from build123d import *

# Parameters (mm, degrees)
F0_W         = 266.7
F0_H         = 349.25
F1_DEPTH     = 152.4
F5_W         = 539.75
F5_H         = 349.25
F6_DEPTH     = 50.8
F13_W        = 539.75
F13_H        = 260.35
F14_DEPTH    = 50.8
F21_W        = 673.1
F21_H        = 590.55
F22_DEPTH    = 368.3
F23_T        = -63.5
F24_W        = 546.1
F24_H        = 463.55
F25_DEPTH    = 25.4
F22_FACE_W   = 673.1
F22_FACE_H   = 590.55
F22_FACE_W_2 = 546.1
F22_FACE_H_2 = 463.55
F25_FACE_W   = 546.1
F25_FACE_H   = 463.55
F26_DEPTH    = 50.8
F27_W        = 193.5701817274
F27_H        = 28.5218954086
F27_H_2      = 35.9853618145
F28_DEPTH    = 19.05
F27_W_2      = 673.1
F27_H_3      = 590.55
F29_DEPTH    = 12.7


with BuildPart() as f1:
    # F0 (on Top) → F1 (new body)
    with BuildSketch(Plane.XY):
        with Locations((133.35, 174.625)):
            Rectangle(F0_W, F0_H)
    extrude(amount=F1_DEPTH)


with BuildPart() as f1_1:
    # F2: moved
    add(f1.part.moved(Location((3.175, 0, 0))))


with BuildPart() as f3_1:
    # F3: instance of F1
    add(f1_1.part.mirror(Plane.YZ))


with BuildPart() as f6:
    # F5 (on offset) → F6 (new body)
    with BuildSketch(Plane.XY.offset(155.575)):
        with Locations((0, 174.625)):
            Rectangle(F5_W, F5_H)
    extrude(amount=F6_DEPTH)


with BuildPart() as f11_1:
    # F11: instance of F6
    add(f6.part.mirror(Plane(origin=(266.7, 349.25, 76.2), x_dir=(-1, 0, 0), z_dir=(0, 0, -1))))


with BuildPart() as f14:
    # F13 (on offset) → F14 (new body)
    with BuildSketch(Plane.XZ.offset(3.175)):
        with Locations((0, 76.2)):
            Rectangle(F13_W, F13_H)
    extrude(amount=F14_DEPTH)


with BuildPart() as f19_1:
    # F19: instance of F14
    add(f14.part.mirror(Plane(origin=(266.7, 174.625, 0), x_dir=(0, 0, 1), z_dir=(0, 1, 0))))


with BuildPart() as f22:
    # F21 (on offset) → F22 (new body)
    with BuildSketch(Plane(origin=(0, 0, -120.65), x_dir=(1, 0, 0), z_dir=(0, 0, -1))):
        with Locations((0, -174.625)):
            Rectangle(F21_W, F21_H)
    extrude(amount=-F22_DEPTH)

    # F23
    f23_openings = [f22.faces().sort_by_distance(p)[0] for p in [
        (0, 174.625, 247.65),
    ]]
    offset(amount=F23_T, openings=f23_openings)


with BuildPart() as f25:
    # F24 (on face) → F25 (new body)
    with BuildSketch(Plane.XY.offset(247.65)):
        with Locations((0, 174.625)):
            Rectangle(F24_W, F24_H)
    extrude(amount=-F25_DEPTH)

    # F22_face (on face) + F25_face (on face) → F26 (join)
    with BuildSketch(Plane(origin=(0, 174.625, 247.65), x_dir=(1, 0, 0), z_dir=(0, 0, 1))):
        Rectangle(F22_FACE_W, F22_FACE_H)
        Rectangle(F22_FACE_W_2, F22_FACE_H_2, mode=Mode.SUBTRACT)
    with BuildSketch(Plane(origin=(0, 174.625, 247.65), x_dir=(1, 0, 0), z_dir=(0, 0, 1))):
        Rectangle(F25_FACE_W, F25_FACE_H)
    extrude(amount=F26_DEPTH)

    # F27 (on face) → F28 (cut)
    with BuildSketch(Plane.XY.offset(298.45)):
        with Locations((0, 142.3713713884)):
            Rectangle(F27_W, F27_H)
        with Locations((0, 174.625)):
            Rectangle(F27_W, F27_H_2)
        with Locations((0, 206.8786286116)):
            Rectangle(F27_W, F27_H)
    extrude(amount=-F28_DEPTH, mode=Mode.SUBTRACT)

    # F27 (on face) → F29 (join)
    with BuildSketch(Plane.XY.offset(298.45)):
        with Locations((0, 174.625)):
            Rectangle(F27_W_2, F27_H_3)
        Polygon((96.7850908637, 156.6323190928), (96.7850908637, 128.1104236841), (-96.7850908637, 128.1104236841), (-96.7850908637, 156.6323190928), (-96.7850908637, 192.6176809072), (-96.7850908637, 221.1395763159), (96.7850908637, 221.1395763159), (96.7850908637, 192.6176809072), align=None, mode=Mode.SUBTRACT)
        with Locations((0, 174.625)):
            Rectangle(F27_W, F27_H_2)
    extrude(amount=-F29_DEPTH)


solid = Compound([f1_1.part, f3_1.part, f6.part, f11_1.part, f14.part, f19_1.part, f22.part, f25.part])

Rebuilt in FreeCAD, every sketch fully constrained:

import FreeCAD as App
import Part
import Sketcher

V = App.Vector
Q = App.Units.Quantity


def faces_at(feature, points):
    """Names of the faces that lie closest to the given points."""
    faces = feature.Shape.Faces
    near = lambda p: min(range(len(faces)), key=lambda i: faces[i].distToShape(Part.Vertex(*p))[0])
    return sorted({f"Face{near(p) + 1}" for p in points})


def add_polygon(sketch, points):
    """Adds a closed chain of lines whose ends are joined by coincident constraints."""
    first, n = sketch.GeometryCount, len(points)
    for a, b in zip(points, points[1:] + points[:1]):
        sketch.addGeometry(Part.LineSegment(App.Vector(*a, 0), App.Vector(*b, 0)), False)
    for i in range(n):
        sketch.addConstraint(Sketcher.Constraint("Coincident", first + i, 2, first + (i + 1) % n, 1))

doc = App.newDocument("Part")
body = doc.addObject("PartDesign::Body", "Body")

sketch1 = body.newObject("Sketcher::SketchObject", "Sketch")
sketch1.AttachmentSupport = (doc.getObject("XY_Plane"), [""])
sketch1.MapMode = "FlatFace"
add_polygon(sketch1, [(0, 349), (0, 0), (267, 0), (267, 349)])
sketch1.addConstraint(Sketcher.Constraint("Vertical", 0))
sketch1.addConstraint(Sketcher.Constraint("Horizontal", 1))
sketch1.addConstraint(Sketcher.Constraint("Vertical", 2))
sketch1.addConstraint(Sketcher.Constraint("Horizontal", 3))
sketch1.addConstraint(Sketcher.Constraint("Coincident", 0, 2, -1, 1))
sketch1.addConstraint(Sketcher.Constraint("DistanceX", 1, 1, 1, 2, Q("10.5 in")))
sketch1.addConstraint(Sketcher.Constraint("DistanceY", 0, 2, 0, 1, Q("13.75 in")))
pad1 = body.newObject("PartDesign::Pad", "Pad")
pad1.Profile = sketch1
pad1.Length = Q("6 in")
body2 = doc.addObject("PartDesign::Body", "Body001")
doc.recompute()

body.Placement = App.Placement(V(3.175, 0, 0), App.Rotation(V(0, 0, 1), 0))
boolean = body2.newObject("PartDesign::Boolean", "Boolean")
boolean.Type = "Fuse"
boolean.addObjects([body])
body3 = doc.addObject("PartDesign::Body", "Body002")
doc.recompute()

mirroring = doc.addObject("Part::Mirroring", "Mirroring")
mirroring.Source = body2
mirroring.Base = V(0, 0, 0)
mirroring.Normal = V(1, 0, 0)
body3.BaseFeature = mirroring
doc.recompute()
body4 = doc.addObject("PartDesign::Body", "Body003")

sketch2 = body4.newObject("Sketcher::SketchObject", "Sketch001")
sketch2.AttachmentSupport = (doc.getObject("XY_Plane003"), [""])
sketch2.MapMode = "FlatFace"
sketch2.AttachmentOffset = App.Placement(V(0, 0, 6.125 * 25.4), App.Rotation())
add_polygon(sketch2, [(-270, 349), (-270, 0), (270, 0), (270, 349)])
sketch2.addConstraint(Sketcher.Constraint("Vertical", 0))
sketch2.addConstraint(Sketcher.Constraint("Horizontal", 1))
sketch2.addConstraint(Sketcher.Constraint("Vertical", 2))
sketch2.addConstraint(Sketcher.Constraint("Horizontal", 3))
sketch2.addConstraint(Sketcher.Constraint("Symmetric", 0, 2, 1, 2, -1, 1))
sketch2.addConstraint(Sketcher.Constraint("DistanceX", 1, 1, 1, 2, Q("21.25 in")))
sketch2.addConstraint(Sketcher.Constraint("DistanceY", 0, 2, 0, 1, Q("13.75 in")))
pad2 = body4.newObject("PartDesign::Pad", "Pad001")
pad2.Profile = sketch2
pad2.Length = Q("2 in")
body5 = doc.addObject("PartDesign::Body", "Body004")
doc.recompute()

mirroring2 = doc.addObject("Part::Mirroring", "Mirroring001")
mirroring2.Source = body4
mirroring2.Base = V(266.7, 349.25, 76.2)
mirroring2.Normal = V(0, 0, -1)
body5.BaseFeature = mirroring2
doc.recompute()
body6 = doc.addObject("PartDesign::Body", "Body005")

sketch3 = body6.newObject("Sketcher::SketchObject", "Sketch002")
sketch3.AttachmentSupport = (doc.getObject("XZ_Plane005"), [""])
sketch3.MapMode = "FlatFace"
sketch3.AttachmentOffset = App.Placement(V(0, 0, 0.125 * 25.4), App.Rotation())
add_polygon(sketch3, [(-270, 206), (-270, -54), (270, -54), (270, 206)])
sketch3.addConstraint(Sketcher.Constraint("Vertical", 0))
sketch3.addConstraint(Sketcher.Constraint("Horizontal", 1))
sketch3.addConstraint(Sketcher.Constraint("Vertical", 2))
sketch3.addConstraint(Sketcher.Constraint("Horizontal", 3))
sketch3.addConstraint(Sketcher.Constraint("DistanceX", 1, 1, 1, 2, Q("21.25 in")))
sketch3.addConstraint(Sketcher.Constraint("DistanceY", 0, 2, 0, 1, Q("10.25 in")))
sketch3.addConstraint(Sketcher.Constraint("DistanceX", 0, 2, -1, 1, Q("10.625 in")))
sketch3.addConstraint(Sketcher.Constraint("DistanceY", 0, 2, -1, 1, Q("2.125 in")))
pad3 = body6.newObject("PartDesign::Pad", "Pad002")
pad3.Profile = sketch3
pad3.Length = Q("2 in")
body7 = doc.addObject("PartDesign::Body", "Body006")
doc.recompute()

mirroring3 = doc.addObject("Part::Mirroring", "Mirroring002")
mirroring3.Source = body6
mirroring3.Base = V(266.7, 174.625, 0)
mirroring3.Normal = V(0, 1, 0)
body7.BaseFeature = mirroring3
doc.recompute()
body8 = doc.addObject("PartDesign::Body", "Body007")

sketch4 = body8.newObject("Sketcher::SketchObject", "Sketch003")
sketch4.AttachmentSupport = (doc.getObject("XY_Plane007"), [""])
sketch4.MapMode = "FlatFace"
sketch4.AttachmentOffset = App.Placement(V(0, 0, -4.75 * 25.4), App.Rotation())
add_polygon(sketch4, [(-337, -121), (-337, 470), (337, 470), (337, -121)])
sketch4.addConstraint(Sketcher.Constraint("Vertical", 0))
sketch4.addConstraint(Sketcher.Constraint("Horizontal", 1))
sketch4.addConstraint(Sketcher.Constraint("Vertical", 2))
sketch4.addConstraint(Sketcher.Constraint("Horizontal", 3))
sketch4.addConstraint(Sketcher.Constraint("DistanceX", 1, 1, 1, 2, Q("26.5 in")))
sketch4.addConstraint(Sketcher.Constraint("DistanceY", 0, 1, 0, 2, Q("23.25 in")))
sketch4.addConstraint(Sketcher.Constraint("DistanceY", -1, 1, 0, 2, Q("18.5 in")))
sketch4.addConstraint(Sketcher.Constraint("DistanceX", 0, 2, -1, 1, Q("13.25 in")))
pad4 = body8.newObject("PartDesign::Pad", "Pad003")
pad4.Profile = sketch4
pad4.Length = Q("14.5 in")
doc.recompute()

thickness = body8.newObject("PartDesign::Thickness", "Thickness")
thickness.Base = (pad4, faces_at(pad4, [(0, 174.625, 247.65)]))
thickness.Value = Q("2.5 in")
thickness.Reversed = True
thickness.Join = "Arc"
body9 = doc.addObject("PartDesign::Body", "Body008")

sketch5 = body9.newObject("Sketcher::SketchObject", "Sketch004")
sketch5.AttachmentSupport = (doc.getObject("XY_Plane008"), [""])
sketch5.MapMode = "FlatFace"
sketch5.AttachmentOffset = App.Placement(V(0, 0, 9.75 * 25.4), App.Rotation())
add_polygon(sketch5, [(-273, 406), (-273, -57), (273, -57), (273, 406)])
sketch5.addConstraint(Sketcher.Constraint("Vertical", 0))
sketch5.addConstraint(Sketcher.Constraint("Horizontal", 1))
sketch5.addConstraint(Sketcher.Constraint("Vertical", 2))
sketch5.addConstraint(Sketcher.Constraint("Horizontal", 3))
sketch5.addConstraint(Sketcher.Constraint("DistanceX", 1, 1, 1, 2, Q("21.5 in")))
sketch5.addConstraint(Sketcher.Constraint("DistanceY", -1, 1, 2, 2, Q("16 in")))
sketch5.addConstraint(Sketcher.Constraint("DistanceY", 0, 2, 0, 1, Q("18.25 in")))
sketch5.addConstraint(Sketcher.Constraint("DistanceX", 0, 2, -1, 1, Q("10.75 in")))
pad5 = body9.newObject("PartDesign::Pad", "Pad004")
pad5.Profile = sketch5
pad5.Length = Q("1 in")
pad5.Reversed = True

sketch6 = body9.newObject("Sketcher::SketchObject", "Sketch005")
sketch6.AttachmentSupport = (doc.getObject("XY_Plane008"), [""])
sketch6.MapMode = "FlatFace"
sketch6.AttachmentOffset = App.Placement(V(0, 0, 9.75 * 25.4), App.Rotation())
add_polygon(sketch6, [(-337, 470), (-337, -121), (337, -121), (337, 470)])
sketch6.addConstraint(Sketcher.Constraint("Vertical", 0))
sketch6.addConstraint(Sketcher.Constraint("Horizontal", 1))
sketch6.addConstraint(Sketcher.Constraint("Vertical", 2))
sketch6.addConstraint(Sketcher.Constraint("Horizontal", 3))
sketch6.addConstraint(Sketcher.Constraint("DistanceX", 1, 1, 1, 2, Q("26.5 in")))
sketch6.addConstraint(Sketcher.Constraint("DistanceY", 0, 2, 0, 1, Q("23.25 in")))
sketch6.addConstraint(Sketcher.Constraint("DistanceY", -1, 1, 2, 2, Q("18.5 in")))
sketch6.addConstraint(Sketcher.Constraint("DistanceX", 0, 2, -1, 1, Q("13.25 in")))
pad6 = body9.newObject("PartDesign::Pad", "Pad005")
pad6.Profile = sketch6
pad6.Length = Q("2 in")

sketch7 = body9.newObject("Sketcher::SketchObject", "Sketch006")
sketch7.AttachmentSupport = (doc.getObject("XY_Plane008"), [""])
sketch7.MapMode = "FlatFace"
sketch7.AttachmentOffset = App.Placement(V(0, 0, 11.75 * 25.4), App.Rotation())
add_polygon(sketch7, [(-97, 128), (97, 128), (97, 221), (-97, 221)])
sketch7.addConstraint(Sketcher.Constraint("Horizontal", 0))
sketch7.addConstraint(Sketcher.Constraint("Vertical", 1))
sketch7.addConstraint(Sketcher.Constraint("Horizontal", 2))
sketch7.addConstraint(Sketcher.Constraint("Vertical", 3))
sketch7.addConstraint(Sketcher.Constraint("DistanceX", 0, 1, 0, 2, Q("193.570182 mm")))
sketch7.addConstraint(Sketcher.Constraint("DistanceY", 1, 1, 1, 2, Q("93.029153 mm")))
sketch7.addConstraint(Sketcher.Constraint("DistanceX", -1, 1, 0, 2, Q("96.785091 mm")))
sketch7.addConstraint(Sketcher.Constraint("DistanceY", -1, 1, 0, 2, Q("128.110424 mm")))
pocket1 = body9.newObject("PartDesign::Pocket", "Pocket")
pocket1.Profile = sketch7
pocket1.Length = Q("0.75 in")

sketch8 = body9.newObject("Sketcher::SketchObject", "Sketch007")
sketch8.AttachmentSupport = (doc.getObject("XY_Plane008"), [""])
sketch8.MapMode = "FlatFace"
sketch8.AttachmentOffset = App.Placement(V(0, 0, 11.75 * 25.4), App.Rotation())
add_polygon(sketch8, [(-337, 470), (-337, -121), (337, -121), (337, 470)])
add_polygon(sketch8, [(97, 221), (97, 193), (-97, 193), (-97, 221)])
add_polygon(sketch8, [(97, 157), (97, 128), (-97, 128), (-97, 157)])
sketch8.addConstraint(Sketcher.Constraint("Vertical", 0))
sketch8.addConstraint(Sketcher.Constraint("Horizontal", 1))
sketch8.addConstraint(Sketcher.Constraint("Vertical", 2))
sketch8.addConstraint(Sketcher.Constraint("Horizontal", 3))
sketch8.addConstraint(Sketcher.Constraint("Vertical", 4))
sketch8.addConstraint(Sketcher.Constraint("Horizontal", 5))
sketch8.addConstraint(Sketcher.Constraint("Vertical", 6))
sketch8.addConstraint(Sketcher.Constraint("Horizontal", 7))
sketch8.addConstraint(Sketcher.Constraint("Vertical", 8))
sketch8.addConstraint(Sketcher.Constraint("Horizontal", 9))
sketch8.addConstraint(Sketcher.Constraint("Vertical", 10))
sketch8.addConstraint(Sketcher.Constraint("Horizontal", 11))
sketch8.addConstraint(Sketcher.Constraint("Vertical", 7, 2, 8, 2))
sketch8.addConstraint(Sketcher.Constraint("Vertical", 6, 2, 9, 2))
sketch8.addConstraint(Sketcher.Constraint("Equal", 6, 8))
sketch8.addConstraint(Sketcher.Constraint("DistanceX", 1, 1, 1, 2, Q("26.5 in")))
sketch8.addConstraint(Sketcher.Constraint("DistanceY", 0, 2, 0, 1, Q("23.25 in")))
sketch8.addConstraint(Sketcher.Constraint("DistanceY", -1, 1, 2, 2, Q("18.5 in")))
sketch8.addConstraint(Sketcher.Constraint("DistanceX", 0, 2, -1, 1, Q("13.25 in")))
sketch8.addConstraint(Sketcher.Constraint("DistanceX", 5, 2, 5, 1, Q("193.570182 mm")))
sketch8.addConstraint(Sketcher.Constraint("DistanceY", 4, 2, 4, 1, Q("28.521895 mm")))
sketch8.addConstraint(Sketcher.Constraint("DistanceX", -1, 1, 4, 2, Q("96.785091 mm")))
sketch8.addConstraint(Sketcher.Constraint("DistanceY", -1, 1, 4, 2, Q("192.617681 mm")))
sketch8.addConstraint(Sketcher.Constraint("DistanceY", -1, 1, 10, 2, Q("156.632319 mm")))
pad7 = body9.newObject("PartDesign::Pad", "Pad006")
pad7.Profile = sketch8
pad7.Length = Q("0.5 in")
pad7.Reversed = True
mirroring.Visibility = False
mirroring2.Visibility = False
mirroring3.Visibility = False

doc.recompute()
